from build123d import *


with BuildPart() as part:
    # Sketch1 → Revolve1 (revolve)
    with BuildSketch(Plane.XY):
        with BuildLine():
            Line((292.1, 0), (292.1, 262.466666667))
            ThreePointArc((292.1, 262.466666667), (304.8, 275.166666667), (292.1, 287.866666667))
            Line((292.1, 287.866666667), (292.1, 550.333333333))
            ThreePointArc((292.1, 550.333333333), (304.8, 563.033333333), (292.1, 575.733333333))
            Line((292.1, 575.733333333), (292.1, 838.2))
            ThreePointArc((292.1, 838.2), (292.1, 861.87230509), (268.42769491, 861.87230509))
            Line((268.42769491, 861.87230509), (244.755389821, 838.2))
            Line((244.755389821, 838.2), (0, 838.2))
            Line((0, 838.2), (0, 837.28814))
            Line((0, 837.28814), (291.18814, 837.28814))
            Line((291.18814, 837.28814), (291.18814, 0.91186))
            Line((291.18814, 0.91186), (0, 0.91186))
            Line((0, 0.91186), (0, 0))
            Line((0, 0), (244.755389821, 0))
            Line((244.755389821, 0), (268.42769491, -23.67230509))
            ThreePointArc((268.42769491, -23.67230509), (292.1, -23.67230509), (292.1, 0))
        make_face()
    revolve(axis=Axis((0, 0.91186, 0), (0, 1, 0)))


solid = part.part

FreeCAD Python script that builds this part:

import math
import FreeCAD as App
import Part
import Sketcher
from FreeCAD import Vector
Q = App.Units.Quantity

doc = App.newDocument("Part")
body = doc.addObject("PartDesign::Body", "Body")

# Sketch on XY plane
sketch1 = doc.addObject("Sketcher::SketchObject", "Sketch")
body.addObject(sketch1)
sketch1.AttachmentSupport = (doc.XY_Plane, [""])
sketch1.MapMode = "FlatFace"
sketch1.addGeometry([
    Part.LineSegment(Vector(292.1, 0, 0), Vector(292.1, 262.5, 0)),  # 0
    Part.ArcOfCircle(Part.Circle(Vector(292.1, 275.2, 0), Vector(0, 0, 1), 12.7), math.radians(-90), math.radians(90)),  # 1
    Part.LineSegment(Vector(292.1, 287.9, 0), Vector(292.1, 550.3, 0)),  # 2
    Part.ArcOfCircle(Part.Circle(Vector(292.1, 563, 0), Vector(0, 0, 1), 12.7), math.radians(-90), math.radians(90)),  # 3
    Part.LineSegment(Vector(292.1, 575.7, 0), Vector(292.1, 838.2, 0)),  # 4
    Part.ArcOfCircle(Part.Circle(Vector(280.3, 850, 0), Vector(0, 0, 1), 16.7), math.radians(-45), math.radians(135)),  # 5
    Part.LineSegment(Vector(268.4, 861.9, 0), Vector(244.8, 838.2, 0)),  # 6
    Part.LineSegment(Vector(244.8, 838.2, 0), Vector(0, 838.2, 0)),  # 7
    Part.LineSegment(Vector(0, 838.2, 0), Vector(0, 837.3, 0)),  # 8
    Part.LineSegment(Vector(0, 837.3, 0), Vector(291.2, 837.3, 0)),  # 9
    Part.LineSegment(Vector(291.2, 837.3, 0), Vector(291.2, 0.9, 0)),  # 10
    Part.LineSegment(Vector(291.2, 0.9, 0), Vector(0, 0.9, 0)),  # 11
    Part.LineSegment(Vector(0, 0.9, 0), Vector(0, 0, 0)),  # 12
    Part.LineSegment(Vector(0, 0, 0), Vector(244.8, 0, 0)),  # 13
    Part.LineSegment(Vector(244.8, 0, 0), Vector(268.4, -23.7, 0)),  # 14
    Part.ArcOfCircle(Part.Circle(Vector(280.3, -11.8, 0), Vector(0, 0, 1), 16.7), math.radians(-135), math.radians(45)),  # 15
], False)
sketch1.addConstraint([
    Sketcher.Constraint("Coincident", 0, 2, 1, 1),
    Sketcher.Constraint("Coincident", 1, 2, 2, 1),
    Sketcher.Constraint("Coincident", 2, 2, 3, 1),
    Sketcher.Constraint("Coincident", 3, 2, 4, 1),
    Sketcher.Constraint("Coincident", 4, 2, 5, 1),
    Sketcher.Constraint("Tangent", 5, 2, 6, 1),
    Sketcher.Constraint("Coincident", 6, 2, 7, 1),
    Sketcher.Constraint("Coincident", 7, 2, 8, 1),
    Sketcher.Constraint("Coincident", 8, 2, 9, 1),
    Sketcher.Constraint("Coincident", 9, 2, 10, 1),
    Sketcher.Constraint("Coincident", 10, 2, 11, 1),
    Sketcher.Constraint("Coincident", 11, 2, 12, 1),
    Sketcher.Constraint("Coincident", 12, 2, 13, 1),
    Sketcher.Constraint("Coincident", 13, 2, 14, 1),
    Sketcher.Constraint("Tangent", 14, 2, 15, 1),
    Sketcher.Constraint("Coincident", 15, 2, 0, 1),
    Sketcher.Constraint("Vertical", 0),
    Sketcher.Constraint("Vertical", 2),
    Sketcher.Constraint("Vertical", 4),
    Sketcher.Constraint("Horizontal", 7),
    Sketcher.Constraint("Vertical", 8),
    Sketcher.Constraint("Horizontal", 9),
    Sketcher.Constraint("Vertical", 10),
    Sketcher.Constraint("Horizontal", 11),
    Sketcher.Constraint("Vertical", 12),
    Sketcher.Constraint("Horizontal", 13),
    Sketcher.Constraint("Coincident", 12, 2, -1, 1),
    Sketcher.Constraint("Equal", 1, 3),
    Sketcher.Constraint("Equal", 5, 15),
    Sketcher.Constraint("PointOnObject", 7, 2, -2),
    Sketcher.Constraint("PointOnObject", 15, 2, -1),
    Sketcher.Constraint("Perpendicular", 6, 14),
    Sketcher.Constraint("Horizontal", 4, 2, 6, 2),
    Sketcher.Constraint("Vertical", 1, 3, 3, 3),
    Sketcher.Constraint("Vertical", 5, 3, 15, 3),
    Sketcher.Constraint("Vertical", 3, 3, 0, 2),
    Sketcher.Constraint("Vertical", 0, 2, 1, 2),
    Sketcher.Constraint("Vertical", 2, 2, 3, 2),
    Sketcher.Constraint("Vertical", 6, 2, 13, 2),
    Sketcher.Constraint("Equal", 0, 2),
    Sketcher.Constraint("Equal", 2, 4),
    Sketcher.Constraint("Equal", 8, 12),
    Sketcher.Constraint("Radius", 1, Q("0.5 in")),
    Sketcher.Constraint("DistanceY", -1, 1, 4, 2, Q("33 in")),
    Sketcher.Constraint("DistanceX", -1, 1, 1, 3, Q("11.5 in")),
    Sketcher.Constraint("DistanceX", 9, 1, 9, 2, Q("11.4641 in")),
    Sketcher.Constraint("DistanceY", 8, 2, 8, 1, Q("0.0359 in")),
    Sketcher.Constraint("Radius", 5, 16.738847),
    Sketcher.Constraint("DistanceY", 3, 3, 5, 3, 287.002819),
])
revolution = doc.addObject("PartDesign::Revolution", "Revolution")
body.addObject(revolution)
revolution.Profile = sketch1
revolution.ReferenceAxis = (sketch1, ["V_Axis"])
revolution.Angle = 360

doc.recompute()
